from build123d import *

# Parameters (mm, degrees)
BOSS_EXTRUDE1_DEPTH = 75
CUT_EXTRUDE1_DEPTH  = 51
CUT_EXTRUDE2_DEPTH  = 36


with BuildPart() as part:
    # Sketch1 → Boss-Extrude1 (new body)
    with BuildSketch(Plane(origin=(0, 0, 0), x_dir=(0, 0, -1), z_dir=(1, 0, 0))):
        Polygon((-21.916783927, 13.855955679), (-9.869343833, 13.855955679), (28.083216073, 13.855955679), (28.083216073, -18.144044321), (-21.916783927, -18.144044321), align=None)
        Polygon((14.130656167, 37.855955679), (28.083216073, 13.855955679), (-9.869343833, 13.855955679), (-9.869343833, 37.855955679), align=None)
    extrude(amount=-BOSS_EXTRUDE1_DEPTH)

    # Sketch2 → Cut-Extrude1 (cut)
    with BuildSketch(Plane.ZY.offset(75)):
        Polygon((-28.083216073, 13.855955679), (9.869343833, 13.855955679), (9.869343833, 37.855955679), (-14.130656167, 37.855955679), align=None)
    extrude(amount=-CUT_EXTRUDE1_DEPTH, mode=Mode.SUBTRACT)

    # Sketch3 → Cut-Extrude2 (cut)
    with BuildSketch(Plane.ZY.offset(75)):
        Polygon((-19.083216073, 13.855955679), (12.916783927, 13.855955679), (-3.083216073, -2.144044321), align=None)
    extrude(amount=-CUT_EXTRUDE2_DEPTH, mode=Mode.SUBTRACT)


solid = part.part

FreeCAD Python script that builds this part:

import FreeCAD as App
import Part
import Sketcher

V = App.Vector

doc = App.newDocument("Part")
params = doc.addObject("Spreadsheet::Sheet", "Params")
for row, (alias, value) in enumerate([
    ("sketch1_width", "32 mm"),
    ("sketch1_width2", "24 mm"),
    ("sketch1_height", "50 mm"),
    ("pad1_length", "75 mm"),
    ("sketch2_width", "24 mm"),
    ("pocket1_length", "51 mm"),
    ("sketch3_height", "32 mm"),
    ("pocket2_length", "36 mm"),
], start=1):
    params.set(f"A{row}", alias)
    params.set(f"B{row}", "=" + value)
    params.setAlias(f"B{row}", alias)

body = doc.addObject("PartDesign::Body", "Body")

sketch1 = doc.addObject("Sketcher::SketchObject", "Sketch")
body.addObject(sketch1)
sketch1.AttachmentSupport = (doc.YZ_Plane, [""])
sketch1.MapMode = "FlatFace"
sketch1.addGeometry([
    Part.LineSegment(V(13.855956, 9.869344, 0), V(13.855956, 21.916784, 0)),
    Part.LineSegment(V(13.855956, 21.916784, 0), V(-18.144044, 21.916784, 0)),
    Part.LineSegment(V(-18.144044, 21.916784, 0), V(-18.144044, -28.083216, 0)),
    Part.LineSegment(V(-18.144044, -28.083216, 0), V(13.855956, -28.083216, 0)),
    Part.LineSegment(V(13.855956, -28.083216, 0), V(37.855956, -14.130656, 0)),
    Part.LineSegment(V(37.855956, -14.130656, 0), V(37.855956, 9.869344, 0)),
    Part.LineSegment(V(37.855956, 9.869344, 0), V(13.855956, 9.869344, 0)),
], False)
sketch1.addConstraint([
    Sketcher.Constraint("Coincident", 0, 2, 1, 1),
    Sketcher.Constraint("Coincident", 1, 2, 2, 1),
    Sketcher.Constraint("Coincident", 2, 2, 3, 1),
    Sketcher.Constraint("Coincident", 3, 2, 4, 1),
    Sketcher.Constraint("Coincident", 4, 2, 5, 1),
    Sketcher.Constraint("Coincident", 5, 2, 6, 1),
    Sketcher.Constraint("Coincident", 6, 2, 0, 1),
    Sketcher.Constraint("Vertical", 0),
    Sketcher.Constraint("Horizontal", 1),
    Sketcher.Constraint("Vertical", 2),
    Sketcher.Constraint("Horizontal", 3),
    Sketcher.Constraint("Vertical", 5),
    Sketcher.Constraint("Horizontal", 6),
    Sketcher.Constraint("Vertical", 0, 2, 3, 2),
    Sketcher.Constraint("Equal", 6, 5),
    Sketcher.Constraint("DistanceX", 1, 2, 1, 1, 32.0),
    Sketcher.Constraint("DistanceX", 6, 2, 6, 1, 24.0),
    Sketcher.Constraint("DistanceY", 2, 2, 2, 1, 50.0),
    Sketcher.Constraint("DistanceY", 0, 1, 0, 2, 12.04744),
    Sketcher.Constraint("DistanceX", -1, 1, 0, 2, 13.855956),
    Sketcher.Constraint("DistanceY", -1, 1, 0, 2, 21.916784),
])
sketch1.setExpression("Constraints[15]", "Params.sketch1_width")
sketch1.setExpression("Constraints[16]", "Params.sketch1_width2")
sketch1.setExpression("Constraints[17]", "Params.sketch1_height")
pad1 = doc.addObject("PartDesign::Pad", "Pad")
body.addObject(pad1)
pad1.Profile = sketch1
pad1.setExpression("Length", "Params.pad1_length")
pad1.Reversed = True

sketch2 = doc.addObject("Sketcher::SketchObject", "Sketch001")
body.addObject(sketch2)
sketch2.AttachmentSupport = (doc.YZ_Plane, [""])
sketch2.MapMode = "FlatFace"
sketch2.AttachmentOffset = App.Placement(V(0, 0, -75), App.Rotation())
sketch2.addGeometry([
    Part.LineSegment(V(13.855956, -28.083216, 0), V(13.855956, 9.869344, 0)),
    Part.LineSegment(V(13.855956, 9.869344, 0), V(37.855956, 9.869344, 0)),
    Part.LineSegment(V(37.855956, 9.869344, 0), V(37.855956, -14.130656, 0)),
    Part.LineSegment(V(37.855956, -14.130656, 0), V(13.855956, -28.083216, 0)),
], False)
sketch2.addConstraint([
    Sketcher.Constraint("Coincident", 0, 2, 1, 1),
    Sketcher.Constraint("Coincident", 1, 2, 2, 1),
    Sketcher.Constraint("Coincident", 2, 2, 3, 1),
    Sketcher.Constraint("Coincident", 3, 2, 0, 1),
    Sketcher.Constraint("Vertical", 0),
    Sketcher.Constraint("Horizontal", 1),
    Sketcher.Constraint("Vertical", 2),
    Sketcher.Constraint("Equal", 1, 2),
    Sketcher.Constraint("DistanceX", 1, 1, 1, 2, 24.0),
    Sketcher.Constraint("DistanceY", 0, 1, 0, 2, 37.95256),
    Sketcher.Constraint("DistanceX", -1, 1, 0, 2, 13.855956),
    Sketcher.Constraint("DistanceY", -1, 1, 0, 2, 9.869344),
])
sketch2.setExpression("Constraints[8]", "Params.sketch2_width")
pocket1 = doc.addObject("PartDesign::Pocket", "Pocket")
body.addObject(pocket1)
pocket1.Profile = sketch2
pocket1.setExpression("Length", "Params.pocket1_length")
pocket1.Reversed = True

sketch3 = doc.addObject("Sketcher::SketchObject", "Sketch002")
body.addObject(sketch3)
sketch3.AttachmentSupport = (doc.YZ_Plane, [""])
sketch3.MapMode = "FlatFace"
sketch3.AttachmentOffset = App.Placement(V(0, 0, -75), App.Rotation())
sketch3.addGeometry([
    Part.LineSegment(V(13.855956, 12.916784, 0), V(13.855956, -19.083216, 0)),
    Part.LineSegment(V(13.855956, -19.083216, 0), V(-2.144044, -3.083216, 0)),
    Part.LineSegment(V(-2.144044, -3.083216, 0), V(13.855956, 12.916784, 0)),
], False)
sketch3.addConstraint([
    Sketcher.Constraint("Coincident", 0, 2, 1, 1),
    Sketcher.Constraint("Coincident", 1, 2, 2, 1),
    Sketcher.Constraint("Coincident", 2, 2, 0, 1),
    Sketcher.Constraint("Vertical", 0),
    Sketcher.Constraint("Perpendicular", 1, 2),
    Sketcher.Constraint("Equal", 1, 2),
    Sketcher.Constraint("DistanceY", 0, 2, 0, 1, 32.0),
    Sketcher.Constraint("DistanceX", -1, 1, 0, 2, 13.855956),
    Sketcher.Constraint("DistanceY", 0, 2, -1, 1, 19.083216),
])
sketch3.setExpression("Constraints[6]", "Params.sketch3_height")
pocket2 = doc.addObject("PartDesign::Pocket", "Pocket001")
body.addObject(pocket2)
pocket2.Profile = sketch3
pocket2.setExpression("Length", "Params.pocket2_length")
pocket2.Reversed = True

doc.recompute()
